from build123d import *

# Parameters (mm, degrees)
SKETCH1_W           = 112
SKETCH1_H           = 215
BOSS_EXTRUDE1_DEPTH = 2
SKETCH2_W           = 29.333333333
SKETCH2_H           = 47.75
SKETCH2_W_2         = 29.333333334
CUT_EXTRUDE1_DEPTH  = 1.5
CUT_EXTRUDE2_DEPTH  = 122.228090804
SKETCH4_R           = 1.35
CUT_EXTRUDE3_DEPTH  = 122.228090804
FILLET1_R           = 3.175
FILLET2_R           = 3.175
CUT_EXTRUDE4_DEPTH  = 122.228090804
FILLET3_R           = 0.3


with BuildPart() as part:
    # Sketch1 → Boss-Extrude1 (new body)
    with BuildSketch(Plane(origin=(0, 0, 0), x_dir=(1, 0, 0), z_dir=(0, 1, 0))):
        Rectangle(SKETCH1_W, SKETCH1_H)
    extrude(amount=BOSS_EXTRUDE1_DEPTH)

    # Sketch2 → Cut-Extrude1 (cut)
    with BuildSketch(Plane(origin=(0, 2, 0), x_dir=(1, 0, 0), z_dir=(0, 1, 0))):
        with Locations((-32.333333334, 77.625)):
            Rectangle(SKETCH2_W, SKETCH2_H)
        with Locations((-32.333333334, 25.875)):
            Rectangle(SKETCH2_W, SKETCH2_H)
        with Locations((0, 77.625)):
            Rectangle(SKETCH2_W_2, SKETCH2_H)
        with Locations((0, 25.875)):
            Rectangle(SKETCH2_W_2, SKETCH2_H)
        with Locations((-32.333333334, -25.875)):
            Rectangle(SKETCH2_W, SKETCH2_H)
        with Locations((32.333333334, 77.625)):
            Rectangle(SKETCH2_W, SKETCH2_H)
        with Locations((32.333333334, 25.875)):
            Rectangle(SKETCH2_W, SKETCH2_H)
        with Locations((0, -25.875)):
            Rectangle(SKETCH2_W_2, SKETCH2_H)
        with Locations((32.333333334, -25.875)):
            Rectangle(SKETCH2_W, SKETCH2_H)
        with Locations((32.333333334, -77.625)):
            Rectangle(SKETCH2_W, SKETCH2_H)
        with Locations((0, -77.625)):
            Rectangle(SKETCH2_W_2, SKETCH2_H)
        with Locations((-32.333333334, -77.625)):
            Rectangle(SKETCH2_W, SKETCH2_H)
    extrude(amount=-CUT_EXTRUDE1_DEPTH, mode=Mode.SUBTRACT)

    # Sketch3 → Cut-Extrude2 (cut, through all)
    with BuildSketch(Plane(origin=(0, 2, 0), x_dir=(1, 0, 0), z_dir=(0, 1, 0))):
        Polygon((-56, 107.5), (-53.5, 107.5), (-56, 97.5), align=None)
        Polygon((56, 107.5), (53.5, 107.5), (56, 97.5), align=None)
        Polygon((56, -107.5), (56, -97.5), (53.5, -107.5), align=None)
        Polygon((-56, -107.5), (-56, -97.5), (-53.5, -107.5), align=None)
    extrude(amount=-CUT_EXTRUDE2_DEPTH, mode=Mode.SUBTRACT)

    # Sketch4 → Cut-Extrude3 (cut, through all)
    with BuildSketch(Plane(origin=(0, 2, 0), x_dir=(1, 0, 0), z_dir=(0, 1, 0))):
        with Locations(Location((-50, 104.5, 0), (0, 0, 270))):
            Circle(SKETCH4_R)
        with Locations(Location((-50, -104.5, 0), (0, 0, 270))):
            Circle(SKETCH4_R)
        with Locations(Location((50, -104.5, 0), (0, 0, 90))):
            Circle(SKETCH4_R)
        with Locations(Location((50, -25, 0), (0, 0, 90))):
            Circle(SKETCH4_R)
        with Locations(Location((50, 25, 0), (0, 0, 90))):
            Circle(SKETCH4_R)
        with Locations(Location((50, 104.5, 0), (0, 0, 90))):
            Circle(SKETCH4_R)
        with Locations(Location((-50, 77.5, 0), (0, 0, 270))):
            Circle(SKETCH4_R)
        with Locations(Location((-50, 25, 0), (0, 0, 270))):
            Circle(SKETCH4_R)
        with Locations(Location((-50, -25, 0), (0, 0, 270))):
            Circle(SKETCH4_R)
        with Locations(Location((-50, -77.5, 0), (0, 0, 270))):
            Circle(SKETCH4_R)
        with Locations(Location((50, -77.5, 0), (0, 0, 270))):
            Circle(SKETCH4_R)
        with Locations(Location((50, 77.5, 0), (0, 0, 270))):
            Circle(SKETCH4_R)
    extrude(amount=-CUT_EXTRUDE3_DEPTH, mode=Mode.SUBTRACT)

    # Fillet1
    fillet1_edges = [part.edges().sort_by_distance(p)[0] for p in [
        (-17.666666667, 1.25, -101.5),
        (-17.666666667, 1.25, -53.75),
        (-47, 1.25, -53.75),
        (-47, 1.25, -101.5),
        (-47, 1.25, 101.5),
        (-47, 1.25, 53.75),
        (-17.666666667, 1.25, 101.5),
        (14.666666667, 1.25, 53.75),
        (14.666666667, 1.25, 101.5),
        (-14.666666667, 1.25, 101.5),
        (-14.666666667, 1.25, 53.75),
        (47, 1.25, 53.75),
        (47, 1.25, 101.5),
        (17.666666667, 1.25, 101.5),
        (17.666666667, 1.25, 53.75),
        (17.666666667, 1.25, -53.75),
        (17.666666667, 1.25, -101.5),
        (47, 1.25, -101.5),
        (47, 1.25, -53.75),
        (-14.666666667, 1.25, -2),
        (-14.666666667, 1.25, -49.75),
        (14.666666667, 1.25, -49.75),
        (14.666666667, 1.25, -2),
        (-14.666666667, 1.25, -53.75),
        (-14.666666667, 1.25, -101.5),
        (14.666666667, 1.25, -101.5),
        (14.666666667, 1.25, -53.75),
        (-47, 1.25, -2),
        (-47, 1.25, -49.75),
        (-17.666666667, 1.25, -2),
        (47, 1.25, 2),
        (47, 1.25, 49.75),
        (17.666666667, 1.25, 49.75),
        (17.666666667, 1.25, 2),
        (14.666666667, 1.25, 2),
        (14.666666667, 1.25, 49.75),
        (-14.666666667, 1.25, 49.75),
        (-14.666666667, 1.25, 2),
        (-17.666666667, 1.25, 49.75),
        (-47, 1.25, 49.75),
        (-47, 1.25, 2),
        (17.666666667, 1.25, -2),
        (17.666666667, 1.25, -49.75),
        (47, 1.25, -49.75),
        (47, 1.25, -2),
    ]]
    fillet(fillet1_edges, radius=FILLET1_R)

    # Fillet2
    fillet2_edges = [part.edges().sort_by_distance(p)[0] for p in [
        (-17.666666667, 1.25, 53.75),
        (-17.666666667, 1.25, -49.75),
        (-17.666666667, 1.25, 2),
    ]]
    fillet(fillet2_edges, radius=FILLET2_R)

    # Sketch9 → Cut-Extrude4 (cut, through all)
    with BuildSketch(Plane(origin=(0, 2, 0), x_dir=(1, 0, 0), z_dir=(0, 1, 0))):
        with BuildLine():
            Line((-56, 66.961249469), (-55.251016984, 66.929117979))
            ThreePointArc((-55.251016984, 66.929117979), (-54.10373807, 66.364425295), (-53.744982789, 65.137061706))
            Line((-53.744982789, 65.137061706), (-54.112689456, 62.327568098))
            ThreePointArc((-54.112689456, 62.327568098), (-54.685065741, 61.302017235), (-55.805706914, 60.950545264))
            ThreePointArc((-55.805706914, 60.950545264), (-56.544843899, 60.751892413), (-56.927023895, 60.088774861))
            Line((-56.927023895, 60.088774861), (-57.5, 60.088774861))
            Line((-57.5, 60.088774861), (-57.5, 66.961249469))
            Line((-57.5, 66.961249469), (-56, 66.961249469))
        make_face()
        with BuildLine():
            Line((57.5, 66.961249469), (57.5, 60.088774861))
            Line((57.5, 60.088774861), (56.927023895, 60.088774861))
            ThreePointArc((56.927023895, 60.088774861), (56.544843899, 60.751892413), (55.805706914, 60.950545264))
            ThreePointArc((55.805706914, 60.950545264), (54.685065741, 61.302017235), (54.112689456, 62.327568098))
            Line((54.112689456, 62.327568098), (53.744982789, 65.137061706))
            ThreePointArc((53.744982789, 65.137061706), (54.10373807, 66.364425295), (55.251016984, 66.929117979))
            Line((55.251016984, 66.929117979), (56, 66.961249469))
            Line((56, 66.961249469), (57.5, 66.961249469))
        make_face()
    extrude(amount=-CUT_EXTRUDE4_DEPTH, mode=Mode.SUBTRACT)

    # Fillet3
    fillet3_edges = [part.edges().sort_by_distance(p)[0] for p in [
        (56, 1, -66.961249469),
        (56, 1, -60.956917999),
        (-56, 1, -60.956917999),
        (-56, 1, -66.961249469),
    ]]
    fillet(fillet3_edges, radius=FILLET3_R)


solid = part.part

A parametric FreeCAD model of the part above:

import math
import FreeCAD as App
import Part
import Sketcher
from FreeCAD import Vector


def edges_at(feature, points):
    """Names of the edges that pass closest to the given points."""
    edges = feature.Shape.Edges
    near = lambda p: min(range(len(edges)), key=lambda i: edges[i].distToShape(Part.Vertex(*p))[0])
    return sorted({f"Edge{near(p) + 1}" for p in points})

doc = App.newDocument("Part")
body = doc.addObject("PartDesign::Body", "Body")

# Sketch on XZ plane
sketch1 = body.newObject("Sketcher::SketchObject", "Sketch")
sketch1.AttachmentSupport = (doc.getObject("XZ_Plane"), [""])
sketch1.MapMode = "FlatFace"
sketch1.addGeometry([
    Part.LineSegment(Vector(-56, -108, 0), Vector(-56, 108, 0)),
    Part.LineSegment(Vector(-56, 108, 0), Vector(56, 108, 0)),
    Part.LineSegment(Vector(56, 108, 0), Vector(56, -108, 0)),
    Part.LineSegment(Vector(56, -108, 0), Vector(-56, -108, 0)),
], False)
sketch1.addConstraint([
    Sketcher.Constraint("Coincident", 0, 2, 1, 1),
    Sketcher.Constraint("Coincident", 1, 2, 2, 1),
    Sketcher.Constraint("Coincident", 2, 2, 3, 1),
    Sketcher.Constraint("Coincident", 3, 2, 0, 1),
    Sketcher.Constraint("Vertical", 0),
    Sketcher.Constraint("Horizontal", 1),
    Sketcher.Constraint("Vertical", 2),
    Sketcher.Constraint("Horizontal", 3),
    Sketcher.Constraint("Symmetric", 0, 2, 2, 2, -1, 1),
    Sketcher.Constraint("DistanceX", 1, 1, 1, 2, 112.0),
    Sketcher.Constraint("DistanceY", 0, 1, 0, 2, 215.0),
])
pad1 = body.newObject("PartDesign::Pad", "Pad")
pad1.Profile = sketch1
pad1.Length = 2
pad1.Reversed = True

# Sketch on XZ plane
sketch2 = body.newObject("Sketcher::SketchObject", "Sketch001")
sketch2.AttachmentSupport = (doc.getObject("XZ_Plane"), [""])
sketch2.MapMode = "FlatFace"
sketch2.AttachmentOffset = App.Placement(Vector(0, 0, -2), App.Rotation())
sketch2.addGeometry([
    Part.LineSegment(Vector(-47, -102, 0), Vector(-47, -54, 0)),  # 0
    Part.LineSegment(Vector(-47, -54, 0), Vector(-18, -54, 0)),  # 1
    Part.LineSegment(Vector(-18, -54, 0), Vector(-18, -102, 0)),  # 2
    Part.LineSegment(Vector(-18, -102, 0), Vector(-47, -102, 0)),  # 3
    Part.LineSegment(Vector(-47, -50, 0), Vector(-47, -2, 0)),  # 4
    Part.LineSegment(Vector(-47, -2, 0), Vector(-18, -2, 0)),  # 5
    Part.LineSegment(Vector(-18, -2, 0), Vector(-18, -50, 0)),  # 6
    Part.LineSegment(Vector(-18, -50, 0), Vector(-47, -50, 0)),  # 7
    Part.LineSegment(Vector(-15, -102, 0), Vector(-15, -54, 0)),  # 8
    Part.LineSegment(Vector(-15, -54, 0), Vector(15, -54, 0)),  # 9
    Part.LineSegment(Vector(15, -54, 0), Vector(15, -102, 0)),  # 10
    Part.LineSegment(Vector(15, -102, 0), Vector(-15, -102, 0)),  # 11
    Part.LineSegment(Vector(-15, -50, 0), Vector(-15, -2, 0)),  # 12
    Part.LineSegment(Vector(-15, -2, 0), Vector(15, -2, 0)),  # 13
    Part.LineSegment(Vector(15, -2, 0), Vector(15, -50, 0)),  # 14
    Part.LineSegment(Vector(15, -50, 0), Vector(-15, -50, 0)),  # 15
    Part.LineSegment(Vector(-47, 2, 0), Vector(-47, 50, 0)),  # 16
    Part.LineSegment(Vector(-47, 50, 0), Vector(-18, 50, 0)),  # 17
    Part.LineSegment(Vector(-18, 50, 0), Vector(-18, 2, 0)),  # 18
    Part.LineSegment(Vector(-18, 2, 0), Vector(-47, 2, 0)),  # 19
    Part.LineSegment(Vector(18, -102, 0), Vector(18, -54, 0)),  # 20
    Part.LineSegment(Vector(18, -54, 0), Vector(47, -54, 0)),  # 21
    Part.LineSegment(Vector(47, -54, 0), Vector(47, -102, 0)),  # 22
    Part.LineSegment(Vector(47, -102, 0), Vector(18, -102, 0)),  # 23
    Part.LineSegment(Vector(18, -50, 0), Vector(18, -2, 0)),  # 24
    Part.LineSegment(Vector(18, -2, 0), Vector(47, -2, 0)),  # 25
    Part.LineSegment(Vector(47, -2, 0), Vector(47, -50, 0)),  # 26
    Part.LineSegment(Vector(47, -50, 0), Vector(18, -50, 0)),  # 27
    Part.LineSegment(Vector(-15, 2, 0), Vector(-15, 50, 0)),  # 28
    Part.LineSegment(Vector(-15, 50, 0), Vector(15, 50, 0)),  # 29
    Part.LineSegment(Vector(15, 50, 0), Vector(15, 2, 0)),  # 30
    Part.LineSegment(Vector(15, 2, 0), Vector(-15, 2, 0)),  # 31
    Part.LineSegment(Vector(18, 2, 0), Vector(18, 50, 0)),  # 32
    Part.LineSegment(Vector(18, 50, 0), Vector(47, 50, 0)),  # 33
    Part.LineSegment(Vector(47, 50, 0), Vector(47, 2, 0)),  # 34
    Part.LineSegment(Vector(47, 2, 0), Vector(18, 2, 0)),  # 35
    Part.LineSegment(Vector(18, 54, 0), Vector(18, 102, 0)),  # 36
    Part.LineSegment(Vector(18, 102, 0), Vector(47, 102, 0)),  # 37
    Part.LineSegment(Vector(47, 102, 0), Vector(47, 54, 0)),  # 38
    Part.LineSegment(Vector(47, 54, 0), Vector(18, 54, 0)),  # 39
    Part.LineSegment(Vector(-15, 54, 0), Vector(-15, 102, 0)),  # 40
    Part.LineSegment(Vector(-15, 102, 0), Vector(15, 102, 0)),  # 41
    Part.LineSegment(Vector(15, 102, 0), Vector(15, 54, 0)),  # 42
    Part.LineSegment(Vector(15, 54, 0), Vector(-15, 54, 0)),  # 43
    Part.LineSegment(Vector(-47, 54, 0), Vector(-47, 102, 0)),  # 44
    Part.LineSegment(Vector(-47, 102, 0), Vector(-18, 102, 0)),  # 45
    Part.LineSegment(Vector(-18, 102, 0), Vector(-18, 54, 0)),  # 46
    Part.LineSegment(Vector(-18, 54, 0), Vector(-47, 54, 0)),  # 47
], False)
sketch2.addConstraint([
    Sketcher.Constraint("Coincident", 0, 2, 1, 1),
    Sketcher.Constraint("Coincident", 1, 2, 2, 1),
    Sketcher.Constraint("Coincident", 2, 2, 3, 1),
    Sketcher.Constraint("Coincident", 3, 2, 0, 1),
    Sketcher.Constraint("Coincident", 4, 2, 5, 1),
    Sketcher.Constraint("Coincident", 5, 2, 6, 1),
    Sketcher.Constraint("Coincident", 6, 2, 7, 1),
    Sketcher.Constraint("Coincident", 7, 2, 4, 1),
    Sketcher.Constraint("Coincident", 8, 2, 9, 1),
    Sketcher.Constraint("Coincident", 9, 2, 10, 1),
    Sketcher.Constraint("Coincident", 10, 2, 11, 1),
    Sketcher.Constraint("Coincident", 11, 2, 8, 1),
    Sketcher.Constraint("Coincident", 12, 2, 13, 1),
    Sketcher.Constraint("Coincident", 13, 2, 14, 1),
    Sketcher.Constraint("Coincident", 14, 2, 15, 1),
    Sketcher.Constraint("Coincident", 15, 2, 12, 1),
    Sketcher.Constraint("Coincident", 16, 2, 17, 1),
    Sketcher.Constraint("Coincident", 17, 2, 18, 1),
    Sketcher.Constraint("Coincident", 18, 2, 19, 1),
    Sketcher.Constraint("Coincident", 19, 2, 16, 1),
    Sketcher.Constraint("Coincident", 20, 2, 21, 1),
    Sketcher.Constraint("Coincident", 21, 2, 22, 1),
    Sketcher.Constraint("Coincident", 22, 2, 23, 1),
    Sketcher.Constraint("Coincident", 23, 2, 20, 1),
    Sketcher.Constraint("Coincident", 24, 2, 25, 1),
    Sketcher.Constraint("Coincident", 25, 2, 26, 1),
    Sketcher.Constraint("Coincident", 26, 2, 27, 1),
    Sketcher.Constraint("Coincident", 27, 2, 24, 1),
    Sketcher.Constraint("Coincident", 28, 2, 29, 1),
    Sketcher.Constraint("Coincident", 29, 2, 30, 1),
    Sketcher.Constraint("Coincident", 30, 2, 31, 1),
    Sketcher.Constraint("Coincident", 31, 2, 28, 1),
    Sketcher.Constraint("Coincident", 32, 2, 33, 1),
    Sketcher.Constraint("Coincident", 33, 2, 34, 1),
    Sketcher.Constraint("Coincident", 34, 2, 35, 1),
    Sketcher.Constraint("Coincident", 35, 2, 32, 1),
    Sketcher.Constraint("Coincident", 36, 2, 37, 1),
    Sketcher.Constraint("Coincident", 37, 2, 38, 1),
    Sketcher.Constraint("Coincident", 38, 2, 39, 1),
    Sketcher.Constraint("Coincident", 39, 2, 36, 1),
    Sketcher.Constraint("Coincident", 40, 2, 41, 1),
    Sketcher.Constraint("Coincident", 41, 2, 42, 1),
    Sketcher.Constraint("Coincident", 42, 2, 43, 1),
    Sketcher.Constraint("Coincident", 43, 2, 40, 1),
    Sketcher.Constraint("Coincident", 44, 2, 45, 1),
    Sketcher.Constraint("Coincident", 45, 2, 46, 1),
    Sketcher.Constraint("Coincident", 46, 2, 47, 1),
    Sketcher.Constraint("Coincident", 47, 2, 44, 1),
    Sketcher.Constraint("Vertical", 0),
    Sketcher.Constraint("Horizontal", 1),
    Sketcher.Constraint("Vertical", 2),
    Sketcher.Constraint("Horizontal", 3),
    Sketcher.Constraint("Vertical", 4),
    Sketcher.Constraint("Horizontal", 5),
    Sketcher.Constraint("Vertical", 6),
    Sketcher.Constraint("Horizontal", 7),
    Sketcher.Constraint("Vertical", 8),
    Sketcher.Constraint("Horizontal", 9),
    Sketcher.Constraint("Vertical", 10),
    Sketcher.Constraint("Horizontal", 11),
    Sketcher.Constraint("Vertical", 12),
    Sketcher.Constraint("Horizontal", 13),
    Sketcher.Constraint("Vertical", 14),
    Sketcher.Constraint("Horizontal", 15),
    Sketcher.Constraint("Vertical", 16),
    Sketcher.Constraint("Horizontal", 17),
    Sketcher.Constraint("Vertical", 18),
    Sketcher.Constraint("Horizontal", 19),
    Sketcher.Constraint("Vertical", 20),
    Sketcher.Constraint("Horizontal", 21),
    Sketcher.Constraint("Vertical", 22),
    Sketcher.Constraint("Horizontal", 23),
    Sketcher.Constraint("Vertical", 24),
    Sketcher.Constraint("Horizontal", 25),
    Sketcher.Constraint("Vertical", 26),
    Sketcher.Constraint("Horizontal", 27),
    Sketcher.Constraint("Vertical", 28),
    Sketcher.Constraint("Horizontal", 29),
    Sketcher.Constraint("Vertical", 30),
    Sketcher.Constraint("Horizontal", 31),
    Sketcher.Constraint("Vertical", 32),
    Sketcher.Constraint("Horizontal", 33),
    Sketcher.Constraint("Vertical", 34),
    Sketcher.Constraint("Horizontal", 35),
    Sketcher.Constraint("Vertical", 36),
    Sketcher.Constraint("Horizontal", 37),
    Sketcher.Constraint("Vertical", 38),
    Sketcher.Constraint("Horizontal", 39),
    Sketcher.Constraint("Vertical", 40),
    Sketcher.Constraint("Horizontal", 41),
    Sketcher.Constraint("Vertical", 42),
    Sketcher.Constraint("Horizontal", 43),
    Sketcher.Constraint("Vertical", 44),
    Sketcher.Constraint("Horizontal", 45),
    Sketcher.Constraint("Vertical", 46),
    Sketcher.Constraint("Horizontal", 47),
    Sketcher.Constraint("Symmetric", 18, 2, 24, 2, -1, 1),
    Sketcher.Constraint("Symmetric", 16, 2, 26, 2, -1, 1),
    Sketcher.Constraint("Symmetric", 14, 2, 28, 2, -1, 1),
    Sketcher.Constraint("Symmetric", 12, 2, 30, 2, -1, 1),
    Sketcher.Constraint("Symmetric", 6, 2, 32, 2, -1, 1),
    Sketcher.Constraint("Symmetric", 4, 2, 34, 2, -1, 1),
    Sketcher.Constraint("Symmetric", 2, 2, 36, 2, -1, 1),
    Sketcher.Constraint("Symmetric", 0, 2, 38, 2, -1, 1),
    Sketcher.Constraint("Symmetric", 10, 2, 40, 2, -1, 1),
    Sketcher.Constraint("Symmetric", 8, 2, 42, 2, -1, 1),
    Sketcher.Constraint("Symmetric", 22, 2, 44, 2, -1, 1),
    Sketcher.Constraint("Symmetric", 20, 2, 46, 2, -1, 1),
    Sketcher.Constraint("Symmetric", 1, 2, 20, 2, -2),
    Sketcher.Constraint("Symmetric", 3, 2, 22, 2, -2),
    Sketcher.Constraint("Symmetric", 5, 2, 24, 2, -2),
    Sketcher.Constraint("Symmetric", 7, 2, 26, 2, -2),
    Sketcher.Constraint("Horizontal", 1, 2, 8, 2),
    Sketcher.Constraint("Horizontal", 3, 2, 10, 2),
    Sketcher.Constraint("Horizontal", 5, 2, 12, 2),
    Sketcher.Constraint("Horizontal", 7, 2, 14, 2),
    Sketcher.Constraint("Vertical", 3, 2, 4, 2),
    Sketcher.Constraint("Vertical", 2, 2, 5, 2),
    Sketcher.Constraint("Vertical", 11, 2, 12, 2),
    Sketcher.Constraint("Vertical", 10, 2, 13, 2),
    Sketcher.Constraint("Vertical", 15, 2, 28, 2),
    Sketcher.Constraint("Equal", 7, 9),
    Sketcher.Constraint("Equal", 2, 4),
    Sketcher.Constraint("DistanceX", 0, 2, -1, 1, 47.0),
    Sketcher.Constraint("DistanceY", 4, 2, -1, 1, 2.0),
    Sketcher.Constraint("DistanceY", 1, 2, 6, 2, 4.0),
    Sketcher.Constraint("DistanceX", 1, 2, 8, 2, 3.0),
    Sketcher.Constraint("DistanceY", 0, 1, 0, 2, 47.75),
])
pocket1 = body.newObject("PartDesign::Pocket", "Pocket")
pocket1.Profile = sketch2
pocket1.Length = 1.5
pocket1.Reversed = True

# Sketch on XZ plane
sketch3 = body.newObject("Sketcher::SketchObject", "Sketch002")
sketch3.AttachmentSupport = (doc.getObject("XZ_Plane"), [""])
sketch3.MapMode = "FlatFace"
sketch3.AttachmentOffset = App.Placement(Vector(0, 0, -2), App.Rotation())
sketch3.addGeometry([
    Part.LineSegment(Vector(-53.5, -107.5, 0), Vector(-56, -107.5, 0)),  # 0
    Part.LineSegment(Vector(-56, -107.5, 0), Vector(-56, -97.5, 0)),  # 1
    Part.LineSegment(Vector(-56, -97.5, 0), Vector(-53.5, -107.5, 0)),  # 2
    Part.LineSegment(Vector(56, -107.5, 0), Vector(53.5, -107.5, 0)),  # 3
    Part.LineSegment(Vector(53.5, -107.5, 0), Vector(56, -97.5, 0)),  # 4
    Part.LineSegment(Vector(56, -97.5, 0), Vector(56, -107.5, 0)),  # 5
    Part.LineSegment(Vector(56, 107.5, 0), Vector(56, 97.5, 0)),  # 6
    Part.LineSegment(Vector(56, 97.5, 0), Vector(53.5, 107.5, 0)),  # 7
    Part.LineSegment(Vector(53.5, 107.5, 0), Vector(56, 107.5, 0)),  # 8
    Part.LineSegment(Vector(-56, 97.5, 0), Vector(-56, 107.5, 0)),  # 9
    Part.LineSegment(Vector(-56, 107.5, 0), Vector(-53.5, 107.5, 0)),  # 10
    Part.LineSegment(Vector(-53.5, 107.5, 0), Vector(-56, 97.5, 0)),  # 11
], False)
sketch3.addConstraint([
    Sketcher.Constraint("Coincident", 0, 2, 1, 1),
    Sketcher.Constraint("Coincident", 1, 2, 2, 1),
    Sketcher.Constraint("Coincident", 2, 2, 0, 1),
    Sketcher.Constraint("Coincident", 3, 2, 4, 1),
    Sketcher.Constraint("Coincident", 4, 2, 5, 1),
    Sketcher.Constraint("Coincident", 5, 2, 3, 1),
    Sketcher.Constraint("Coincident", 6, 2, 7, 1),
    Sketcher.Constraint("Coincident", 7, 2, 8, 1),
    Sketcher.Constraint("Coincident", 8, 2, 6, 1),
    Sketcher.Constraint("Coincident", 9, 2, 10, 1),
    Sketcher.Constraint("Coincident", 10, 2, 11, 1),
    Sketcher.Constraint("Coincident", 11, 2, 9, 1),
    Sketcher.Constraint("Horizontal", 0),
    Sketcher.Constraint("Vertical", 1),
    Sketcher.Constraint("Horizontal", 3),
    Sketcher.Constraint("Vertical", 5),
    Sketcher.Constraint("Vertical", 6),
    Sketcher.Constraint("Horizontal", 8),
    Sketcher.Constraint("Vertical", 9),
    Sketcher.Constraint("Horizontal", 10),
    Sketcher.Constraint("Symmetric", 1, 2, 6, 2, -1, 1),
    Sketcher.Constraint("Symmetric", 2, 2, 7, 2, -1, 1),
    Sketcher.Constraint("Symmetric", 5, 2, 9, 2, -1, 1),
    Sketcher.Constraint("Symmetric", 2, 2, 3, 2, -2),
    Sketcher.Constraint("Symmetric", 1, 2, 4, 2, -2),
    Sketcher.Constraint("Parallel", 4, 11),
    Sketcher.Constraint("Horizontal", 6, 2, 11, 2),
    Sketcher.Constraint("DistanceY", 1, 1, 1, 2, 10.0),
    Sketcher.Constraint("DistanceX", 0, 2, 0, 1, 2.5),
    Sketcher.Constraint("DistanceX", 0, 2, -1, 1, 56.0),
    Sketcher.Constraint("DistanceY", 4, 2, 6, 2, 195.0),
])
pocket2 = body.newObject("PartDesign::Pocket", "Pocket001")
pocket2.Profile = sketch3
pocket2.Type = "ThroughAll"
pocket2.Reversed = True

# Sketch on XZ plane
sketch4 = body.newObject("Sketcher::SketchObject", "Sketch003")
sketch4.AttachmentSupport = (doc.getObject("XZ_Plane"), [""])
sketch4.MapMode = "FlatFace"
sketch4.AttachmentOffset = App.Placement(Vector(0, 0, -2), App.Rotation())
sketch4.addGeometry([
    Part.Circle(Vector(-50, -104.5, 0), Vector(0, 0, 1), 1.4),  # 0
    Part.Circle(Vector(-50, 104.5, 0), Vector(0, 0, 1), 1.4),  # 1
    Part.Circle(Vector(50, 104.5, 0), Vector(0, 0, 1), 1.4),  # 2
    Part.Circle(Vector(50, 25, 0), Vector(0, 0, 1), 1.4),  # 3
    Part.Circle(Vector(50, -25, 0), Vector(0, 0, 1), 1.4),  # 4
    Part.Circle(Vector(50, -104.5, 0), Vector(0, 0, 1), 1.4),  # 5
    Part.Circle(Vector(-50, -77.5, 0), Vector(0, 0, 1), 1.4),  # 6
    Part.Circle(Vector(-50, -25, 0), Vector(0, 0, 1), 1.4),  # 7
    Part.Circle(Vector(-50, 25, 0), Vector(0, 0, 1), 1.4),  # 8
    Part.Circle(Vector(-50, 77.5, 0), Vector(0, 0, 1), 1.4),  # 9
    Part.Circle(Vector(50, 77.5, 0), Vector(0, 0, 1), 1.4),  # 10
    Part.Circle(Vector(50, -77.5, 0), Vector(0, 0, 1), 1.4),  # 11
], False)
sketch4.addConstraint([
    Sketcher.Constraint("Equal", 0, 1),
    Sketcher.Constraint("Equal", 1, 2),
    Sketcher.Constraint("Equal", 2, 3),
    Sketcher.Constraint("Equal", 3, 4),
    Sketcher.Constraint("Equal", 4, 5),
    Sketcher.Constraint("Equal", 5, 6),
    Sketcher.Constraint("Equal", 6, 7),
    Sketcher.Constraint("Equal", 7, 8),
    Sketcher.Constraint("Equal", 8, 9),
    Sketcher.Constraint("Equal", 9, 10),
    Sketcher.Constraint("Equal", 10, 11),
    Sketcher.Constraint("Symmetric", 0, 3, 2, 3, -1, 1),
    Sketcher.Constraint("Symmetric", 1, 3, 5, 3, -1, 1),
    Sketcher.Constraint("Symmetric", 3, 3, 7, 3, -1, 1),
    Sketcher.Constraint("Symmetric", 4, 3, 8, 3, -1, 1),
    Sketcher.Constraint("Symmetric", 6, 3, 10, 3, -1, 1),
    Sketcher.Constraint("Symmetric", 9, 3, 11, 3, -1, 1),
    Sketcher.Constraint("Symmetric", 1, 3, 2, 3, -2),
    Sketcher.Constraint("Symmetric", 4, 3, 7, 3, -2),
    Sketcher.Constraint("Symmetric", 9, 3, 10, 3, -2),
    Sketcher.Constraint("Vertical", 2, 3, 3, 3),
    Sketcher.Constraint("Vertical", 1, 3, 6, 3),
    Sketcher.Constraint("Diameter", 0, 2.7),
    Sketcher.Constraint("DistanceX", 0, 3, -1, 1, 50.0),
    Sketcher.Constraint("DistanceY", -1, 1, 3, 3, 25.0),
    Sketcher.Constraint("DistanceY", 0, 3, 1, 3, 209.0),
    Sketcher.Constraint("DistanceY", 0, 3, 6, 3, 27.0),
])
pocket3 = body.newObject("PartDesign::Pocket", "Pocket002")
pocket3.Profile = sketch4
pocket3.Type = "ThroughAll"
pocket3.Reversed = True
doc.recompute()

fillet = body.newObject("PartDesign::Fillet", "Fillet")
fillet.Base = (pocket3, edges_at(pocket3, [
    (-17.667, 1.25, -101.5),
    (-17.667, 1.25, -53.75),
    (-47, 1.25, -53.75),
    (-47, 1.25, -101.5),
    (-47, 1.25, 101.5),
    (-47, 1.25, 53.75),
    (-17.667, 1.25, 101.5),
    (14.667, 1.25, 53.75),
    (14.667, 1.25, 101.5),
    (-14.667, 1.25, 101.5),
    (-14.667, 1.25, 53.75),
    (47, 1.25, 53.75),
    (47, 1.25, 101.5),
    (17.667, 1.25, 101.5),
    (17.667, 1.25, 53.75),
    (17.667, 1.25, -53.75),
    (17.667, 1.25, -101.5),
    (47, 1.25, -101.5),
    (47, 1.25, -53.75),
    (-14.667, 1.25, -2),
    (-14.667, 1.25, -49.75),
    (14.667, 1.25, -49.75),
    (14.667, 1.25, -2),
    (-14.667, 1.25, -53.75),
    (-14.667, 1.25, -101.5),
    (14.667, 1.25, -101.5),
    (14.667, 1.25, -53.75),
    (-47, 1.25, -2),
    (-47, 1.25, -49.75),
    (-17.667, 1.25, -2),
    (47, 1.25, 2),
    (47, 1.25, 49.75),
    (17.667, 1.25, 49.75),
    (17.667, 1.25, 2),
    (14.667, 1.25, 2),
    (14.667, 1.25, 49.75),
    (-14.667, 1.25, 49.75),
    (-14.667, 1.25, 2),
    (-17.667, 1.25, 49.75),
    (-47, 1.25, 49.75),
    (-47, 1.25, 2),
    (17.667, 1.25, -2),
    (17.667, 1.25, -49.75),
    (47, 1.25, -49.75),
    (47, 1.25, -2),
]))
fillet.Radius = 3.175
doc.recompute()

fillet2 = body.newObject("PartDesign::Fillet", "Fillet001")
fillet2.Base = (fillet, edges_at(fillet, [(-17.667, 1.25, 53.75), (-17.667, 1.25, -49.75), (-17.667, 1.25, 2)]))
fillet2.Radius = 3.175

# Sketch on XZ plane
sketch5 = body.newObject("Sketcher::SketchObject", "Sketch004")
sketch5.AttachmentSupport = (doc.getObject("XZ_Plane"), [""])
sketch5.MapMode = "FlatFace"
sketch5.AttachmentOffset = App.Placement(Vector(0, 0, -2), App.Rotation())
sketch5.addGeometry([
    Part.LineSegment(Vector(-55.3, -66.9, 0), Vector(-56, -67, 0)),  # 0
    Part.LineSegment(Vector(-56, -67, 0), Vector(-57.5, -67, 0)),  # 1
    Part.LineSegment(Vector(-57.5, -67, 0), Vector(-57.5, -60.1, 0)),  # 2
    Part.LineSegment(Vector(-57.5, -60.1, 0), Vector(-56.9, -60.1, 0)),  # 3
    Part.ArcOfCircle(Part.Circle(Vector(-55.9, -60, 0), Vector(0, 0, 1), 1), math.radians(-173), math.radians(-83)),  # 4
    Part.ArcOfCircle(Part.Circle(Vector(-55.7, -62.5, 0), Vector(0, 0, 1), 1.6), math.radians(7), math.radians(94)),  # 5
    Part.LineSegment(Vector(-54.1, -62.3, 0), Vector(-53.7, -65.1, 0)),  # 6
    Part.ArcOfCircle(Part.Circle(Vector(-55.3, -65.3, 0), Vector(0, 0, 1), 1.6), math.radians(-88), math.radians(7)),  # 7
    Part.LineSegment(Vector(57.5, -60.1, 0), Vector(57.5, -67, 0)),  # 8
    Part.LineSegment(Vector(57.5, -67, 0), Vector(56, -67, 0)),  # 9
    Part.LineSegment(Vector(56, -67, 0), Vector(55.3, -66.9, 0)),  # 10
    Part.ArcOfCircle(Part.Circle(Vector(55.3, -65.3, 0), Vector(0, 0, 1), 1.6), math.radians(173), math.radians(268)),  # 11
    Part.LineSegment(Vector(53.7, -65.1, 0), Vector(54.1, -62.3, 0)),  # 12
    Part.ArcOfCircle(Part.Circle(Vector(55.7, -62.5, 0), Vector(0, 0, 1), 1.6), math.radians(86), math.radians(173)),  # 13
    Part.ArcOfCircle(Part.Circle(Vector(55.9, -60, 0), Vector(0, 0, 1), 1), math.radians(-97), math.radians(-7)),  # 14
    Part.LineSegment(Vector(56.9, -60.1, 0), Vector(57.5, -60.1, 0)),  # 15
], False)
sketch5.addConstraint([
    Sketcher.Constraint("Coincident", 0, 2, 1, 1),
    Sketcher.Constraint("Coincident", 1, 2, 2, 1),
    Sketcher.Constraint("Coincident", 2, 2, 3, 1),
    Sketcher.Constraint("Coincident", 3, 2, 4, 1),
    Sketcher.Constraint("Coincident", 4, 2, 5, 2),
    Sketcher.Constraint("Tangent", 5, 1, 6, 1),
    Sketcher.Constraint("Tangent", 6, 2, 7, 2),
    Sketcher.Constraint("Tangent", 7, 1, 0, 1),
    Sketcher.Constraint("Coincident", 8, 2, 9, 1),
    Sketcher.Constraint("Coincident", 9, 2, 10, 1),
    Sketcher.Constraint("Tangent", 10, 2, 11, 2),
    Sketcher.Constraint("Tangent", 11, 1, 12, 1),
    Sketcher.Constraint("Tangent", 12, 2, 13, 2),
    Sketcher.Constraint("Coincident", 13, 1, 14, 1),
    Sketcher.Constraint("Coincident", 14, 2, 15, 1),
    Sketcher.Constraint("Coincident", 15, 2, 8, 1),
    Sketcher.Constraint("Horizontal", 1),
    Sketcher.Constraint("Vertical", 2),
    Sketcher.Constraint("Horizontal", 3),
    Sketcher.Constraint("Vertical", 8),
    Sketcher.Constraint("Horizontal", 9),
    Sketcher.Constraint("Horizontal", 15),
    Sketcher.Constraint("Equal", 5, 7),
    Sketcher.Constraint("Equal", 7, 11),
    Sketcher.Constraint("Equal", 11, 13),
    Sketcher.Constraint("Equal", 4, 14),
    Sketcher.Constraint("Symmetric", 7, 3, 11, 3, -2),
    Sketcher.Constraint("Symmetric", 5, 3, 13, 3, -2),
    Sketcher.Constraint("Symmetric", 4, 3, 14, 3, -2),
    Sketcher.Constraint("Symmetric", 1, 2, 8, 2, -2),
    Sketcher.Constraint("Horizontal", 7, 1, 10, 2),
    Sketcher.Constraint("Horizontal", 3, 2, 14, 2),
    Sketcher.Constraint("Radius", 4, 1.0),
    Sketcher.Constraint("DistanceX", 1, 2, 1, 1, 1.5),
    Sketcher.Constraint("DistanceX", 0, 2, -1, 1, 56.0),
    Sketcher.Constraint("Radius", 5, 1.5875),
    Sketcher.Constraint("DistanceY", 4, 3, -1, 1, 59.959002),
    Sketcher.Constraint("DistanceY", 7, 3, 2, 2, 5.254302),
    Sketcher.Constraint("Distance", 0, 0.749672),
    Sketcher.Constraint("DistanceX", 3, 1, 3, 2, 0.572976),
    Sketcher.Constraint("DistanceY", 2, 1, 2, 2, 6.872475),
    Sketcher.Constraint("DistanceX", 4, 3, -1, 1, 55.93548),
    Sketcher.Constraint("DistanceX", 5, 1, -1, 1, 54.112689),
    Sketcher.Constraint("DistanceY", 5, 1, -1, 1, 62.327568),
])
pocket4 = body.newObject("PartDesign::Pocket", "Pocket003")
pocket4.Profile = sketch5
pocket4.Type = "ThroughAll"
pocket4.Reversed = True
doc.recompute()

fillet3 = body.newObject("PartDesign::Fillet", "Fillet002")
fillet3.Base = (pocket4, edges_at(pocket4, [
    (56, 1, -66.961),
    (56, 1, -60.957),
    (-56, 1, -60.957),
    (-56, 1, -66.961),
]))
fillet3.Radius = 0.3

doc.recompute()
